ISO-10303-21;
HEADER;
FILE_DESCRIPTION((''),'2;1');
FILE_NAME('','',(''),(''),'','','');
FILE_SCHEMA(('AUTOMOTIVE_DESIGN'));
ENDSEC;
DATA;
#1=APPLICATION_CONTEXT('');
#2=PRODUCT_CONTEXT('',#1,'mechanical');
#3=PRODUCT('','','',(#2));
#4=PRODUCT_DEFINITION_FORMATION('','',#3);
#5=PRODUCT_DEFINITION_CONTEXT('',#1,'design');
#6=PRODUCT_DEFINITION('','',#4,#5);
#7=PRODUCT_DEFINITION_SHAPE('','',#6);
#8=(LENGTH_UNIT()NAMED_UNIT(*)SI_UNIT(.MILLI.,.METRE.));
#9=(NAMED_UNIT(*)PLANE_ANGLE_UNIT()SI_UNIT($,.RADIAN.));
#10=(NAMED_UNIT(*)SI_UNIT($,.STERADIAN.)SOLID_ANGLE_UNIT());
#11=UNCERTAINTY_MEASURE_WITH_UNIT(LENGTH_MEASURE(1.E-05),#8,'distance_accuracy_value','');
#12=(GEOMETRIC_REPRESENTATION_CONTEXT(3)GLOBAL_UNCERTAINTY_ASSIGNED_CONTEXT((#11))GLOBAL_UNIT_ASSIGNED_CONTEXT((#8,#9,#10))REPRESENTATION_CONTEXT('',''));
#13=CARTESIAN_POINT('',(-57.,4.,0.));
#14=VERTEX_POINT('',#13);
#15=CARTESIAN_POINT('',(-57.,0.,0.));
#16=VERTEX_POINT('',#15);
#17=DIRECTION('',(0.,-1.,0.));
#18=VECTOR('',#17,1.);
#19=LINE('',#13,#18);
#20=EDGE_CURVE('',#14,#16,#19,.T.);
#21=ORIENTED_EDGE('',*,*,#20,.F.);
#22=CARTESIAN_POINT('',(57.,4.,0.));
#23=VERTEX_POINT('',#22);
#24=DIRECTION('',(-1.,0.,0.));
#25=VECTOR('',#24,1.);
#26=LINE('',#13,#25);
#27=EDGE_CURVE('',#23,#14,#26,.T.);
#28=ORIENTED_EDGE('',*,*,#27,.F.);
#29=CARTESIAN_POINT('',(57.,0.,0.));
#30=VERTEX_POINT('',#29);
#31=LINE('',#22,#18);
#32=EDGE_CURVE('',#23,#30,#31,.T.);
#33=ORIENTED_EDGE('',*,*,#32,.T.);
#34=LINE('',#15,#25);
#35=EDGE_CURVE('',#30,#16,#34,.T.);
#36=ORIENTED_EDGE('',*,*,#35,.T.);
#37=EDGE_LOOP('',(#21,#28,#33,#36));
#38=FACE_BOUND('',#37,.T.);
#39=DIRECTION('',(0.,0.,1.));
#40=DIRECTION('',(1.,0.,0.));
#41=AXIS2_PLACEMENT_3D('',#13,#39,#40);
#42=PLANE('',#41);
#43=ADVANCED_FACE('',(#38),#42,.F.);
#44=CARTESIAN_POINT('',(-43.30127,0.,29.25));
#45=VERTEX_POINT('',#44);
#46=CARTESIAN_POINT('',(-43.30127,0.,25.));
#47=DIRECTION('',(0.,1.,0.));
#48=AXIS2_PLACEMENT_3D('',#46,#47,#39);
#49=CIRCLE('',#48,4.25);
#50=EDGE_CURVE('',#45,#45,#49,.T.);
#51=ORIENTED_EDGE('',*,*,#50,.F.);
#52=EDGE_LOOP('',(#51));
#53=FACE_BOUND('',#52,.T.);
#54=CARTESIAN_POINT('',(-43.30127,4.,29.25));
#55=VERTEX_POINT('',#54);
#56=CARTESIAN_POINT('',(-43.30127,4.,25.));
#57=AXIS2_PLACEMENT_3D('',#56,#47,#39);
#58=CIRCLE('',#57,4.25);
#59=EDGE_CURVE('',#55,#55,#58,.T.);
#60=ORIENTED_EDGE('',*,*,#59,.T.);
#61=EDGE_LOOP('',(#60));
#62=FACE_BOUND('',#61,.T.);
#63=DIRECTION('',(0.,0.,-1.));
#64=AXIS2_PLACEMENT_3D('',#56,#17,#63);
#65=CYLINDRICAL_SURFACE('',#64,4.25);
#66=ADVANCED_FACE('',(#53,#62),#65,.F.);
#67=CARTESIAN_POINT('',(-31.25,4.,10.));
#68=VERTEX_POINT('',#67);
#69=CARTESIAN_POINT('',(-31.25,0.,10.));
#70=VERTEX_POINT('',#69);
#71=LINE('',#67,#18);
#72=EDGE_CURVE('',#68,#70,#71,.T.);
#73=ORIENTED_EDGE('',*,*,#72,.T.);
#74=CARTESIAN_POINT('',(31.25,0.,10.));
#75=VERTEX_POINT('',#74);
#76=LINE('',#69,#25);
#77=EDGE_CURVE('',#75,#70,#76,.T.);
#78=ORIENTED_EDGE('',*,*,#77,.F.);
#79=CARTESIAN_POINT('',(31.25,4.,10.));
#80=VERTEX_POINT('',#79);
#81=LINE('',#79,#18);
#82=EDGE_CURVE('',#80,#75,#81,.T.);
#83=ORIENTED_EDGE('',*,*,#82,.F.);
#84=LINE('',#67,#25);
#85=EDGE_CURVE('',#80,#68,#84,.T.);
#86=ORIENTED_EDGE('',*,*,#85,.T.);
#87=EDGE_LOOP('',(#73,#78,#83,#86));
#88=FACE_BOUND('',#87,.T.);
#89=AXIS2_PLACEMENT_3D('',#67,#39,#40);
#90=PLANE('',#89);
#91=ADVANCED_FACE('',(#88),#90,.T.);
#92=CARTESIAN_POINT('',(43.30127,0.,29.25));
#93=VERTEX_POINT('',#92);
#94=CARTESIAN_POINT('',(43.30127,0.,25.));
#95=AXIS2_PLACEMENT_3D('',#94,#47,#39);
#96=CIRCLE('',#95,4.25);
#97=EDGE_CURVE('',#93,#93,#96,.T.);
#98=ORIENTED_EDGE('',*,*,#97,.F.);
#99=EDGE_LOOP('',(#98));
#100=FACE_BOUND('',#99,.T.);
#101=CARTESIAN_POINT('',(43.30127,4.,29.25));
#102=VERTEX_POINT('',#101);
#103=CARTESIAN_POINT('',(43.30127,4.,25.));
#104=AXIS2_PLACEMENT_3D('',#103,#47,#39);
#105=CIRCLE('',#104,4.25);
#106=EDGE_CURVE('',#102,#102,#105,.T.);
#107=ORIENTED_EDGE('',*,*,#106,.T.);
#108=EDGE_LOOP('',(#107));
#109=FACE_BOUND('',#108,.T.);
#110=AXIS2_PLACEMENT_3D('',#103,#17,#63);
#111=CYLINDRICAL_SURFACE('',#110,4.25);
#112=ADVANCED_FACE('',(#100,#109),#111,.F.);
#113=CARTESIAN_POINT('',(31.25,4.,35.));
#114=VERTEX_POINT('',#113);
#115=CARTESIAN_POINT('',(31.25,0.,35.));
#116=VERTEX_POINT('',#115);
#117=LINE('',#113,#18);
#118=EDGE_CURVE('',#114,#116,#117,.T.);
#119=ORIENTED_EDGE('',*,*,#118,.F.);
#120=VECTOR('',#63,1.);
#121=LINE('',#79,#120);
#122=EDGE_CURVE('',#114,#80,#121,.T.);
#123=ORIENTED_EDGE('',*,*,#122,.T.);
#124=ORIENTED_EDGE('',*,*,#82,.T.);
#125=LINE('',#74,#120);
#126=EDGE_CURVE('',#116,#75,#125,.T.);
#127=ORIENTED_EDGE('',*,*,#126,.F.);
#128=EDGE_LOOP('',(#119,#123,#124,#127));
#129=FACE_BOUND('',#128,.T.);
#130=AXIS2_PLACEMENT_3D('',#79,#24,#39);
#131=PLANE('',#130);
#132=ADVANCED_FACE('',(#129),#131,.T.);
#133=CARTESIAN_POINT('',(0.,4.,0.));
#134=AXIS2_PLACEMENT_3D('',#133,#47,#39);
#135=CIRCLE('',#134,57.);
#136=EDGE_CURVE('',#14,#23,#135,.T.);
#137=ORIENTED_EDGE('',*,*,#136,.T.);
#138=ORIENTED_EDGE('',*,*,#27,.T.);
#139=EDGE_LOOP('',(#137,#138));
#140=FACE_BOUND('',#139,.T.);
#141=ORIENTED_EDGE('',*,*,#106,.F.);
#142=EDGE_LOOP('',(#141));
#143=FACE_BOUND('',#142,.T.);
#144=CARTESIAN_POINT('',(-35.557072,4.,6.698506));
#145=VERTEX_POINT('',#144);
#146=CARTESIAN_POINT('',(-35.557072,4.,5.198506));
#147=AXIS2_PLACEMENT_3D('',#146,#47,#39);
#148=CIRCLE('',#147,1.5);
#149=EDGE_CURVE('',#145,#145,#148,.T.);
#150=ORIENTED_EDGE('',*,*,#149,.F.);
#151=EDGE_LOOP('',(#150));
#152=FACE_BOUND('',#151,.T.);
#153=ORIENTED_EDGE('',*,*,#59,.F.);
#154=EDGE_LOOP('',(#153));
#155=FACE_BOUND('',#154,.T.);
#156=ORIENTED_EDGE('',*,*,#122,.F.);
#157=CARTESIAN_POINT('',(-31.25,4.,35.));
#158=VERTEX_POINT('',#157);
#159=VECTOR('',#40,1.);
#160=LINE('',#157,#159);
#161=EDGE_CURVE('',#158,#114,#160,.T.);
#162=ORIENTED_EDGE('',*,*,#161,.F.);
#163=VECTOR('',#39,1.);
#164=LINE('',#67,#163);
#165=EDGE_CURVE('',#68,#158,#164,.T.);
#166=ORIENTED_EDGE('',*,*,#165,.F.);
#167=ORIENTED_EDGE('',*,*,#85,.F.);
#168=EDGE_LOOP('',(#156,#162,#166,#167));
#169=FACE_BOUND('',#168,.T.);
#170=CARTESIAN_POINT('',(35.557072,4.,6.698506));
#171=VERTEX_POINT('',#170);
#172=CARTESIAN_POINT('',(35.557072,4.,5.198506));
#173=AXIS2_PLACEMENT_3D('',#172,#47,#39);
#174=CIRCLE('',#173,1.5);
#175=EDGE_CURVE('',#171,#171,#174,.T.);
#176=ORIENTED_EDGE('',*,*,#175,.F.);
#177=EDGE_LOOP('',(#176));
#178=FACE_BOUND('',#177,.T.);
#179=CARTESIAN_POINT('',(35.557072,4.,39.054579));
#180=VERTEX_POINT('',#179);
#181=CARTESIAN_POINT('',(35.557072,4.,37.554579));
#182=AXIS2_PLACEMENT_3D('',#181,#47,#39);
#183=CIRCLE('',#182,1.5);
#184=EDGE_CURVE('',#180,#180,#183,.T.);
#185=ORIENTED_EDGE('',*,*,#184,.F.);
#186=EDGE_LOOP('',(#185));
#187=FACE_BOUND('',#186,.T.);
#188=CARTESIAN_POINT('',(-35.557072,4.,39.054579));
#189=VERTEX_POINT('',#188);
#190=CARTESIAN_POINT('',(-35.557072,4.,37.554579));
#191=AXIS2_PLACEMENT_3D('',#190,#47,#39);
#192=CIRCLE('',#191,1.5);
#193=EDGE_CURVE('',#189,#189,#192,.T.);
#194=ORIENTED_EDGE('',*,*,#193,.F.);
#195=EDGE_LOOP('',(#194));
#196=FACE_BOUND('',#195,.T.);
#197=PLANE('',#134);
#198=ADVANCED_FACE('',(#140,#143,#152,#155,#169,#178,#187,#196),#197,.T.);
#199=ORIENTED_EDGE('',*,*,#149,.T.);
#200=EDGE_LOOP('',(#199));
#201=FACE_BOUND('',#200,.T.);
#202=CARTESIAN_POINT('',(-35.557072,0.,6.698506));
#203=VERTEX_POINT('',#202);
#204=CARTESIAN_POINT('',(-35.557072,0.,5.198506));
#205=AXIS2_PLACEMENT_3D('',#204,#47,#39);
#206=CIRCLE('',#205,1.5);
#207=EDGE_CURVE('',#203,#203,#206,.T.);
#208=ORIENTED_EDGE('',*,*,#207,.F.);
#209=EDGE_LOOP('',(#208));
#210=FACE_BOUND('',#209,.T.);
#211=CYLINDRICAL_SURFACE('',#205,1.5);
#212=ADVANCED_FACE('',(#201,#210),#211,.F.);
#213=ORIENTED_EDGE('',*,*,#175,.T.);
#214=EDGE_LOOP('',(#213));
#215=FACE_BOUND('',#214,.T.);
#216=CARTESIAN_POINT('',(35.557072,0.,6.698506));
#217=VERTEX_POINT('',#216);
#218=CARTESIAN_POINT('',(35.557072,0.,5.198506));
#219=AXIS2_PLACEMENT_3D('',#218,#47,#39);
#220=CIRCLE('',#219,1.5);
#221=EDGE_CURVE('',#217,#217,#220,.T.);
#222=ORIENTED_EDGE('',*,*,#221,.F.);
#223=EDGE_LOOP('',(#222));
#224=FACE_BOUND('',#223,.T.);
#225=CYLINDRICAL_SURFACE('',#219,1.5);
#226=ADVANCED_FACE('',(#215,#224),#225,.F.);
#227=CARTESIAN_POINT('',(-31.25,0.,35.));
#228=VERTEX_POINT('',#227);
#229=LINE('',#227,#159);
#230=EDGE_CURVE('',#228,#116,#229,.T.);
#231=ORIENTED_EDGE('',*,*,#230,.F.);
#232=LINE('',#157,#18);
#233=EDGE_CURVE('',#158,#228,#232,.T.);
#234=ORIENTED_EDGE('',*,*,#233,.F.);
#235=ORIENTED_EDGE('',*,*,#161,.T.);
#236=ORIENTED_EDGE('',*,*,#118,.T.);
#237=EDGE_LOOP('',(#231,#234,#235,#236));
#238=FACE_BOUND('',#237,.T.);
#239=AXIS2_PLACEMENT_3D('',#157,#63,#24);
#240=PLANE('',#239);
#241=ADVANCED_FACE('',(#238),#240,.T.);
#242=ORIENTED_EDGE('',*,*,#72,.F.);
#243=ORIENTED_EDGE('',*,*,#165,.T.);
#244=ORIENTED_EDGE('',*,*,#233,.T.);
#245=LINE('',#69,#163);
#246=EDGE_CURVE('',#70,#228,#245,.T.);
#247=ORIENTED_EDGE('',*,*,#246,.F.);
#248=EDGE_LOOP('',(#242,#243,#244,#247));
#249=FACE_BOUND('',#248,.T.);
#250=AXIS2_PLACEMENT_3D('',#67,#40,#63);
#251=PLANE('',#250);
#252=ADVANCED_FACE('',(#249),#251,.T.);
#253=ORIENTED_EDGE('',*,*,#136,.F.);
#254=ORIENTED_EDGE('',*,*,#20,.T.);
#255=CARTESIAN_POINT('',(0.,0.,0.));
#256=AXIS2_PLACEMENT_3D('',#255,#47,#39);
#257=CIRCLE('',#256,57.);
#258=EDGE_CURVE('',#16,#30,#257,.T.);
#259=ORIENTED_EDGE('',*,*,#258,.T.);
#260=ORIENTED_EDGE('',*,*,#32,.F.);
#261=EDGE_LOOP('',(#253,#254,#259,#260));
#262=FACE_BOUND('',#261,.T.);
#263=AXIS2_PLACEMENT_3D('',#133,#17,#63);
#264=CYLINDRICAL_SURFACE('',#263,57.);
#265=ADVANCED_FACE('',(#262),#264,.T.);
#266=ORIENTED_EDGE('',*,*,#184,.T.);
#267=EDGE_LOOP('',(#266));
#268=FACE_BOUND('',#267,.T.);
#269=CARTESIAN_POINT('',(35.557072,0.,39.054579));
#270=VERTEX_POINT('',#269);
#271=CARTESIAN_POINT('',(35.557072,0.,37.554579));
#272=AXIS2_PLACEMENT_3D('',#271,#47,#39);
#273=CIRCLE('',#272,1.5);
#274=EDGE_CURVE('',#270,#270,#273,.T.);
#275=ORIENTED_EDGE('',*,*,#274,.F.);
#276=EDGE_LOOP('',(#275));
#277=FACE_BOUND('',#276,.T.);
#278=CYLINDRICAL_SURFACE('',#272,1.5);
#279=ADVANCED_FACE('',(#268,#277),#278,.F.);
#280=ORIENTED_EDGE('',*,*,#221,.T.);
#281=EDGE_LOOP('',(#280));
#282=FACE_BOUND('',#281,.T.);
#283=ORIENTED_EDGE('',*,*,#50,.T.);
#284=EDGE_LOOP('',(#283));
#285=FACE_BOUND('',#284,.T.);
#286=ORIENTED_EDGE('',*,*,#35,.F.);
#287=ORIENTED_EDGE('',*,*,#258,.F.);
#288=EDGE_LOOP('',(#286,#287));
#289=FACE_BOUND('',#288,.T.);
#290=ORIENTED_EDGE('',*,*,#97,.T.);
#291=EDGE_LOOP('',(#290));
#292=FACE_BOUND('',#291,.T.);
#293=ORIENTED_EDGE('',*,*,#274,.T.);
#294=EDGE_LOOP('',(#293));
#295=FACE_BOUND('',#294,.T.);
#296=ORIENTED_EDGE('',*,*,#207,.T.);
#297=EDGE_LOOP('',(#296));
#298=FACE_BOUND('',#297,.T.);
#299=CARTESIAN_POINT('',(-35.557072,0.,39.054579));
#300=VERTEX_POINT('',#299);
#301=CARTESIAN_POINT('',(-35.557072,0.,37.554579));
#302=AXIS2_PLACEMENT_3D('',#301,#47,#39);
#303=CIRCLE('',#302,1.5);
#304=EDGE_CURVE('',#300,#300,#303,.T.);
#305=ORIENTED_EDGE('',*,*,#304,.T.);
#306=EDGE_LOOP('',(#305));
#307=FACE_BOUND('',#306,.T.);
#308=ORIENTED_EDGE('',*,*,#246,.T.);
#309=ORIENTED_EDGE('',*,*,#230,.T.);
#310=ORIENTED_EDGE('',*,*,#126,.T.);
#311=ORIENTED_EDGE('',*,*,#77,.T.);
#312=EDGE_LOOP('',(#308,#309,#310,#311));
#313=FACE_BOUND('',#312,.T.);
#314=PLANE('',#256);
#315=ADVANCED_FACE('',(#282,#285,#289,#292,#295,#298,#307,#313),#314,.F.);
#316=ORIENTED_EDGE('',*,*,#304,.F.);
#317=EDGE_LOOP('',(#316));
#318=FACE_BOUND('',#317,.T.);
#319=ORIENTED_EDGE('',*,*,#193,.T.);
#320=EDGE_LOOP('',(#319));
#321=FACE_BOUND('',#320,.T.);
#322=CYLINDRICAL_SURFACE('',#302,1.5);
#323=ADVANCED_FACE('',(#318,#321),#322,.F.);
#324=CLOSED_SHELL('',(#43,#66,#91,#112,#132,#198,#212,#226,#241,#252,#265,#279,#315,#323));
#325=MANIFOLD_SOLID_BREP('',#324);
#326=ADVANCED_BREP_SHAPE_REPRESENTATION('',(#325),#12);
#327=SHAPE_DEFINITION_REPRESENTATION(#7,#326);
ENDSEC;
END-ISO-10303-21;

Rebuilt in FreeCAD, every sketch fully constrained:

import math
import FreeCAD as App
import Part
import Sketcher
from FreeCAD import Vector

doc = App.newDocument("Part")
params = doc.addObject("Spreadsheet::Sheet", "Params")
for row, (alias, value) in enumerate([
    ("sketch1_radius", "57 mm"),
    ("sketch1_diameter", "8.5 mm"),
    ("sketch1_height", "25 mm"),
    ("sketch1_width", "62.5 mm"),
    ("pad1_length", "4 mm"),
    ("sketch2_diameter", "3 mm"),
], start=1):
    params.set(f"A{row}", alias)
    params.set(f"B{row}", "=" + value)
    params.setAlias(f"B{row}", alias)

body = doc.addObject("PartDesign::Body", "Body")

sketch1 = body.newObject("Sketcher::SketchObject", "Sketch")
sketch1.AttachmentSupport = (doc.getObject("XZ_Plane"), [""])
sketch1.MapMode = "FlatFace"
sketch1.addGeometry([
    Part.LineSegment(Vector(57, 0, 0), Vector(-57, 0, 0)),
    Part.ArcOfCircle(Part.Circle(Vector(0, 0, 0), Vector(0, 0, 1), 57), math.radians(0), math.radians(180)),
    Part.Circle(Vector(43.3, 25, 0), Vector(0, 0, 1), 4.2),
    Part.Circle(Vector(-43.3, 25, 0), Vector(0, 0, 1), 4.2),
    Part.LineSegment(Vector(-31.2, 35, 0), Vector(-31.2, 10, 0)),
    Part.LineSegment(Vector(-31.2, 10, 0), Vector(31.2, 10, 0)),
    Part.LineSegment(Vector(31.2, 10, 0), Vector(31.2, 35, 0)),
    Part.LineSegment(Vector(31.2, 35, 0), Vector(-31.2, 35, 0)),
], False)
sketch1.addConstraint([
    Sketcher.Constraint("Coincident", 0, 1, 1, 1),
    Sketcher.Constraint("Coincident", 1, 2, 0, 2),
    Sketcher.Constraint("Coincident", 4, 2, 5, 1),
    Sketcher.Constraint("Coincident", 5, 2, 6, 1),
    Sketcher.Constraint("Coincident", 6, 2, 7, 1),
    Sketcher.Constraint("Coincident", 7, 2, 4, 1),
    Sketcher.Constraint("Horizontal", 0),
    Sketcher.Constraint("Vertical", 4),
    Sketcher.Constraint("Horizontal", 5),
    Sketcher.Constraint("Vertical", 6),
    Sketcher.Constraint("Horizontal", 7),
    Sketcher.Constraint("Coincident", 1, 3, -1, 1),
    Sketcher.Constraint("Equal", 2, 3),
    Sketcher.Constraint("Symmetric", 2, 3, 3, 3, -2),
    Sketcher.Constraint("PointOnObject", 0, 1, -1),
    Sketcher.Constraint("Radius", 1, 57.0),
    Sketcher.Constraint("Diameter", 2, 8.5),
    Sketcher.Constraint("DistanceY", 4, 2, 4, 1, 25.0),
    Sketcher.Constraint("DistanceX", 5, 1, 5, 2, 62.5),
    Sketcher.Constraint("DistanceY", -1, 1, 2, 3, 25.0),
    Sketcher.Constraint("DistanceY", -1, 1, 4, 2, 10.0),
    Sketcher.Constraint("DistanceX", 4, 2, -1, 1, 31.25),
    Sketcher.Constraint("DistanceX", -1, 1, 2, 3, 43.30127),
])
sketch1.setExpression("Constraints[15]", "Params.sketch1_radius")
sketch1.setExpression("Constraints[16]", "Params.sketch1_diameter")
sketch1.setExpression("Constraints[17]", "Params.sketch1_height")
sketch1.setExpression("Constraints[18]", "Params.sketch1_width")
pad1 = body.newObject("PartDesign::Pad", "Pad")
pad1.Profile = sketch1
pad1.setExpression("Length", "Params.pad1_length")
pad1.Reversed = True

sketch2 = body.newObject("Sketcher::SketchObject", "Sketch001")
sketch2.AttachmentSupport = (doc.getObject("XZ_Plane"), [""])
sketch2.MapMode = "FlatFace"
sketch2.AttachmentOffset = App.Placement(Vector(0, 0, -4), App.Rotation())
sketch2.addGeometry([
    Part.Circle(Vector(-35.6, 37.6, 0), Vector(0, 0, 1), 1.5),
    Part.Circle(Vector(-35.6, 5.2, 0), Vector(0, 0, 1), 1.5),
    Part.Circle(Vector(35.6, 5.2, 0), Vector(0, 0, 1), 1.5),
    Part.Circle(Vector(35.6, 37.6, 0), Vector(0, 0, 1), 1.5),
], False)
sketch2.addConstraint([
    Sketcher.Constraint("Equal", 0, 1),
    Sketcher.Constraint("Equal", 1, 2),
    Sketcher.Constraint("Equal", 2, 3),
    Sketcher.Constraint("Symmetric", 1, 3, 2, 3, -2),
    Sketcher.Constraint("Symmetric", 0, 3, 3, 3, -2),
    Sketcher.Constraint("Vertical", 0, 3, 1, 3),
    Sketcher.Constraint("Diameter", 0, 3.0),
    Sketcher.Constraint("DistanceX", 0, 3, -1, 1, 35.557072),
    Sketcher.Constraint("DistanceY", -1, 1, 0, 3, 37.554579),
    Sketcher.Constraint("DistanceY", -1, 1, 1, 3, 5.198506),
])
sketch2.setExpression("Constraints[6]", "Params.sketch2_diameter")
pocket1 = body.newObject("PartDesign::Pocket", "Pocket")
pocket1.Profile = sketch2
pocket1.Type = "ThroughAll"
pocket1.Reversed = True

doc.recompute()
